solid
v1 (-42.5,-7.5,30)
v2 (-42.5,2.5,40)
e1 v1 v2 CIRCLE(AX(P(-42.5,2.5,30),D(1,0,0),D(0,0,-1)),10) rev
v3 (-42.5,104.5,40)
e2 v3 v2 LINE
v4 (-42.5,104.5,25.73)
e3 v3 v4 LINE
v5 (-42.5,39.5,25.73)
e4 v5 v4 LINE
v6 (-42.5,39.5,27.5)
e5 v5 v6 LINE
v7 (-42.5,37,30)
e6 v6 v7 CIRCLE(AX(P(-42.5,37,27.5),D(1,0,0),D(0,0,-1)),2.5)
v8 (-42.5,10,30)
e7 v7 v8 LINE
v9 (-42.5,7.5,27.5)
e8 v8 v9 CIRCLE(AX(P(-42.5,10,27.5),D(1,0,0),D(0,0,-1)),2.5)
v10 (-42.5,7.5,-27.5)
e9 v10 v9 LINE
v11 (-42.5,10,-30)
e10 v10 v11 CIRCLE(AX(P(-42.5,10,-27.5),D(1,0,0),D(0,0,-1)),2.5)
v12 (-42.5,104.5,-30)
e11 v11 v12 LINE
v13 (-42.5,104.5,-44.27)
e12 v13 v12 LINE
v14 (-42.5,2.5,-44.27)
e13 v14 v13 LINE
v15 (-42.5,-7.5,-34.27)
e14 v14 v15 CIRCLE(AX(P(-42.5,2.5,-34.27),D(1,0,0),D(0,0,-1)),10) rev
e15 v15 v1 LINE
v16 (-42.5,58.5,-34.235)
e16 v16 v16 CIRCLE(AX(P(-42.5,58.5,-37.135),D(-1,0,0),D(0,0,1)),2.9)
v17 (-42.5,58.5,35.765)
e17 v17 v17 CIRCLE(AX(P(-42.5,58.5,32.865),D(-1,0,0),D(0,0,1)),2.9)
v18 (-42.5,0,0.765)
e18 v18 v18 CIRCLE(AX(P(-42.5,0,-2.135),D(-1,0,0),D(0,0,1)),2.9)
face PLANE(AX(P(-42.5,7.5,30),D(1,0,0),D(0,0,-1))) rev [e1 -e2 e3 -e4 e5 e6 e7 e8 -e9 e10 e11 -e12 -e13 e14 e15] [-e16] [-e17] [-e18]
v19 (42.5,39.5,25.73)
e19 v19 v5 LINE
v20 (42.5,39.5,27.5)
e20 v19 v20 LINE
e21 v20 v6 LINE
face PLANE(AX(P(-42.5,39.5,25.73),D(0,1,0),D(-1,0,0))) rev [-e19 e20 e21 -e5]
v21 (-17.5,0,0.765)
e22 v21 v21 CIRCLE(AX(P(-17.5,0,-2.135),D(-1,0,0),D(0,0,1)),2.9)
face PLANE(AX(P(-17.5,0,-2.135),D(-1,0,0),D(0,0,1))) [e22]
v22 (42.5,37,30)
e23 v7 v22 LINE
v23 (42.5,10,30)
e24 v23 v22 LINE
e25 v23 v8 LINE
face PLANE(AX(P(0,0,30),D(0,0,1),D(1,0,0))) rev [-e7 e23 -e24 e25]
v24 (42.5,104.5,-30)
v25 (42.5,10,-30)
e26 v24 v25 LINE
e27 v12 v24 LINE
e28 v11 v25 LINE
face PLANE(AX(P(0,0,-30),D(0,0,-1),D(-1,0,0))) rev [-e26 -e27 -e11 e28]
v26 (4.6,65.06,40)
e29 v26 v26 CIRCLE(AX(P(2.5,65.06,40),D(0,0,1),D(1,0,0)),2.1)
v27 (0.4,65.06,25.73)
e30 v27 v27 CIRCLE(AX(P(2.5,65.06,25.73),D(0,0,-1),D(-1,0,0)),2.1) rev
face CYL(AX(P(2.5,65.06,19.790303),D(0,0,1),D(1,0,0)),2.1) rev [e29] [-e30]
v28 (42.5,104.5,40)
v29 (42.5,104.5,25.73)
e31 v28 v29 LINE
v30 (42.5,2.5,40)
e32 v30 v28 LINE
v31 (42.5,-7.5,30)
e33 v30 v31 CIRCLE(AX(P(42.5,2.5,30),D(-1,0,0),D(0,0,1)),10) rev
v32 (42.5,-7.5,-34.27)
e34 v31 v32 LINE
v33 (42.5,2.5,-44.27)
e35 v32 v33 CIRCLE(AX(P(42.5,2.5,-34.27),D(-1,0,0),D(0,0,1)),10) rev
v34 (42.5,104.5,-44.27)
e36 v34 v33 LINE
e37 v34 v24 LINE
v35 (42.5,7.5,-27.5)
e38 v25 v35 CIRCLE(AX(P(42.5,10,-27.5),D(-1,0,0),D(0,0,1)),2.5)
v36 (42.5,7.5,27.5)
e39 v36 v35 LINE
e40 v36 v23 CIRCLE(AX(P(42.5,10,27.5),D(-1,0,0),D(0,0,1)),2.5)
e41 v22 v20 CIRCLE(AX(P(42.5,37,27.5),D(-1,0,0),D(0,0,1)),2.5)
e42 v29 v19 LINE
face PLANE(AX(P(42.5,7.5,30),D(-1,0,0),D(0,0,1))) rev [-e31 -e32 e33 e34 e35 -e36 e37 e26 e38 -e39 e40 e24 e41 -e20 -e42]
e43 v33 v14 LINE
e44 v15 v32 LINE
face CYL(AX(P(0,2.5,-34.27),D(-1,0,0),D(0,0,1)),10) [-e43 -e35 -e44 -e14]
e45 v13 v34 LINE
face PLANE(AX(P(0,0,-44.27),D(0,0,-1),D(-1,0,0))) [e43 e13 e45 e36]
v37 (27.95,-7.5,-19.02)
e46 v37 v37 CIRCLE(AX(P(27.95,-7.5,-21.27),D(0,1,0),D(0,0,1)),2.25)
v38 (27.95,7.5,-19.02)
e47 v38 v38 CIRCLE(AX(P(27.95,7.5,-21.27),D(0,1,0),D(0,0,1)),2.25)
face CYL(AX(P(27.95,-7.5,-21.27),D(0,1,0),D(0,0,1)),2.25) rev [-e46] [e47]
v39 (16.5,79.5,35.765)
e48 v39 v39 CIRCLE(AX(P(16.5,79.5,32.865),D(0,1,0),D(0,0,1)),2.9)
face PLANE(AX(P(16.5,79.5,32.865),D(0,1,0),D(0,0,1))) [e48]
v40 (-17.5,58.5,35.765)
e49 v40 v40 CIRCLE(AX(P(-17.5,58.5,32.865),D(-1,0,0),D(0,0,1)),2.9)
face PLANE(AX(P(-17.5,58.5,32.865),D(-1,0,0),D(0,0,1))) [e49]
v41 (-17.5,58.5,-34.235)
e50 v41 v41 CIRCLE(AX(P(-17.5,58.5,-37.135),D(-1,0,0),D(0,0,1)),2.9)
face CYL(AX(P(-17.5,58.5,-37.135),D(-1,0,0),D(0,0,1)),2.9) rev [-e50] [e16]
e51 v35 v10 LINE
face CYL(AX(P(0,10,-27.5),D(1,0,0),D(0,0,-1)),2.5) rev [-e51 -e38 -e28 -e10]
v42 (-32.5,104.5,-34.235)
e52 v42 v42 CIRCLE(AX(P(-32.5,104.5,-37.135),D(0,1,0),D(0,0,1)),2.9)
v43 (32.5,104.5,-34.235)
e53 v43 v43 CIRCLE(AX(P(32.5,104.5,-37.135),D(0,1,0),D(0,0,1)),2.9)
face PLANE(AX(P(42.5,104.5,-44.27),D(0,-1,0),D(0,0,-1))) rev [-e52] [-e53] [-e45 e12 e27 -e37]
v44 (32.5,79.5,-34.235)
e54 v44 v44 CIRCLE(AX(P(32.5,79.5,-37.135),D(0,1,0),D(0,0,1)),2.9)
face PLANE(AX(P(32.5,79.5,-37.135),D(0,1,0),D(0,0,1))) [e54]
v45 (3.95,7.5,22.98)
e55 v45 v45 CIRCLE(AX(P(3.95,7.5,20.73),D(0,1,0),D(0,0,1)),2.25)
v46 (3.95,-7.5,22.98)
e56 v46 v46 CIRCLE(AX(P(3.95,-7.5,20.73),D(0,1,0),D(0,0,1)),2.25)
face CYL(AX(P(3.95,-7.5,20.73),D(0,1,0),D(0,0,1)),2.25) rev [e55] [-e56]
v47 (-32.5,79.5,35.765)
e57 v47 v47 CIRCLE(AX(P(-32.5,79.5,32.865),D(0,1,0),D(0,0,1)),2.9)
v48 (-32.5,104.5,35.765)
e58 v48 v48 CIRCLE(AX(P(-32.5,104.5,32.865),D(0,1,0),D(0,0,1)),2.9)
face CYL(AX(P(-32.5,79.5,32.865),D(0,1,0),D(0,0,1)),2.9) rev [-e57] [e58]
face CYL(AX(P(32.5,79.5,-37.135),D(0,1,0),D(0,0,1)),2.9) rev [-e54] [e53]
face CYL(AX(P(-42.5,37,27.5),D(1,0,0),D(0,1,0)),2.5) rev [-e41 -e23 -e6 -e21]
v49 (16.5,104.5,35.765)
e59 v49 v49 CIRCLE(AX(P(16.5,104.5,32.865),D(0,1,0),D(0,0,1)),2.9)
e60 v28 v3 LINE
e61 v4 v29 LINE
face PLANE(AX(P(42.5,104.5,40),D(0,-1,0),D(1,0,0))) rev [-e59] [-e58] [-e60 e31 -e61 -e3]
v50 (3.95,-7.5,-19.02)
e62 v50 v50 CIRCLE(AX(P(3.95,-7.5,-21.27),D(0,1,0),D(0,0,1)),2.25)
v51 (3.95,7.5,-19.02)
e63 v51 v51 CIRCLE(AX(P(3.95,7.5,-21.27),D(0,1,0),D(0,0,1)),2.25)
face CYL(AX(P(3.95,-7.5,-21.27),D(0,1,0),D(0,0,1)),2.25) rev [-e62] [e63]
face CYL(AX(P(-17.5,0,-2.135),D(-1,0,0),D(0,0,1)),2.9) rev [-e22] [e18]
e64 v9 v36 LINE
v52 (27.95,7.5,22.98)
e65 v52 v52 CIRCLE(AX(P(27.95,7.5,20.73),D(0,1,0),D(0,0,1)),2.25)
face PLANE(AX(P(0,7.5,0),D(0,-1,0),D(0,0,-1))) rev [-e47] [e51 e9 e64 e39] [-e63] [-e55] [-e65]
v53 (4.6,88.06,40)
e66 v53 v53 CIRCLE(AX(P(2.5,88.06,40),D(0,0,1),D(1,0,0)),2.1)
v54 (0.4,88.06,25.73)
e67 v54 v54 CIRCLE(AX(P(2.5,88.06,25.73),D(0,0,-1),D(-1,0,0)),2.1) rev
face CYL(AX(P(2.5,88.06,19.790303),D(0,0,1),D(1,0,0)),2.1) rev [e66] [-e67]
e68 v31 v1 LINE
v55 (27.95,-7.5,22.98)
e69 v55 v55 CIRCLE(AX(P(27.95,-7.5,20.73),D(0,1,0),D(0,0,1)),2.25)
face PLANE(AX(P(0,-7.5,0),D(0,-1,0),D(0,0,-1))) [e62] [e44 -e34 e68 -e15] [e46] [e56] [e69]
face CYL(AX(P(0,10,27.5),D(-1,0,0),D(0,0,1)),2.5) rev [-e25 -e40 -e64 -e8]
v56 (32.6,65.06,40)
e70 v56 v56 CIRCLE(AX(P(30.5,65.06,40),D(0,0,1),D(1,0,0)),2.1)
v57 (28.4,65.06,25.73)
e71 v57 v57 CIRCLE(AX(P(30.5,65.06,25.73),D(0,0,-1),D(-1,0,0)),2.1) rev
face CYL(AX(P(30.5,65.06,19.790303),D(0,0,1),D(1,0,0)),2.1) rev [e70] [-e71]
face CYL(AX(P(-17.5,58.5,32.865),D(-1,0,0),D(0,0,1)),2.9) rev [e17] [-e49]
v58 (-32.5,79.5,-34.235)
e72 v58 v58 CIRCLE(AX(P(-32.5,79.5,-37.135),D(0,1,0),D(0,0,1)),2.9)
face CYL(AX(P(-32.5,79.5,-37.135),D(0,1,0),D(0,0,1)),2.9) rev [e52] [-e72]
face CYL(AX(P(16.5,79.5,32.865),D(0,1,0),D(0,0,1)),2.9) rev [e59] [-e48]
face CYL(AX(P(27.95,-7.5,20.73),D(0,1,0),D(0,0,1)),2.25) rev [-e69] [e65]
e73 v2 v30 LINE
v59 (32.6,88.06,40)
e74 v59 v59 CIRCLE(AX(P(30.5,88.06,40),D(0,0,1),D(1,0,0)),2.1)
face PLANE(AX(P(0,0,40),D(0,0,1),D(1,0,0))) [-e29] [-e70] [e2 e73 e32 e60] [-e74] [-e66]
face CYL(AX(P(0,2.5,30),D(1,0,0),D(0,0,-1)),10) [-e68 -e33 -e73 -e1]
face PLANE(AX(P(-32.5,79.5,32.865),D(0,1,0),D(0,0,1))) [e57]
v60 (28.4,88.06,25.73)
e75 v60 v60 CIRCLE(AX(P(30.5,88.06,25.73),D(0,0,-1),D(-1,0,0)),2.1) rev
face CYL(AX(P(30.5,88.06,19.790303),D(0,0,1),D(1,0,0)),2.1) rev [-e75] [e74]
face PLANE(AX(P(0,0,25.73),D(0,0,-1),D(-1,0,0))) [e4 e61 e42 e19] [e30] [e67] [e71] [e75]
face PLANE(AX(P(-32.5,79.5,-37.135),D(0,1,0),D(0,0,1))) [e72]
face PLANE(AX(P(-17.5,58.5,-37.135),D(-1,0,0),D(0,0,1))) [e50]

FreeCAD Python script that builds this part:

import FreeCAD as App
import Part
import Sketcher
Q = App.Units.Quantity


def edges_at(feature, points):
    """Names of the edges that pass closest to the given points."""
    edges = feature.Shape.Edges
    near = lambda p: min(range(len(edges)), key=lambda i: edges[i].distToShape(Part.Vertex(*p))[0])
    return sorted({f"Edge{near(p) + 1}" for p in points})


def add_polygon(sketch, points):
    """Adds a closed chain of lines whose ends are joined by coincident constraints."""
    first, n = sketch.GeometryCount, len(points)
    for a, b in zip(points, points[1:] + points[:1]):
        sketch.addGeometry(Part.LineSegment(App.Vector(*a, 0), App.Vector(*b, 0)), False)
    for i in range(n):
        sketch.addConstraint(Sketcher.Constraint("Coincident", first + i, 2, first + (i + 1) % n, 1))

doc = App.newDocument("Part")
body = doc.addObject("PartDesign::Body", "Body")

sketch1 = body.newObject("Sketcher::SketchObject", "Sketch")
sketch1.AttachmentSupport = (doc.getObject("XZ_Plane"), [""])
sketch1.MapMode = "FlatFace"
add_polygon(sketch1, [(-42, -30), (-42, 30), (42, 30), (42, -30)])
sketch1.addConstraint([
    Sketcher.Constraint("Vertical", 0),
    Sketcher.Constraint("Horizontal", 1),
    Sketcher.Constraint("Vertical", 2),
    Sketcher.Constraint("Horizontal", 3),
    Sketcher.Constraint("Symmetric", 0, 2, 2, 2, -1, 1),
    Sketcher.Constraint("DistanceX", 1, 1, 1, 2, Q("85 mm")),
    Sketcher.Constraint("DistanceY", 0, 1, 0, 2, Q("60 mm")),
])
pad1 = body.newObject("PartDesign::Pad", "Pad")
pad1.Profile = sketch1
pad1.Length = 15
pad1.Midplane = True

sketch2 = body.newObject("Sketcher::SketchObject", "Sketch001")
sketch2.AttachmentSupport = (doc.getObject("XZ_Plane"), [""])
sketch2.MapMode = "FlatFace"
sketch2.AttachmentOffset = App.Placement(App.Vector(0, 0, -7.5), App.Rotation())
sketch2.addGeometry([
    Part.Circle(App.Vector(4, 20.7, 0), App.Vector(0, 0, 1), 2.2),
    Part.Circle(App.Vector(4, -21.3, 0), App.Vector(0, 0, 1), 2.2),
    Part.Circle(App.Vector(27.9, -21.3, 0), App.Vector(0, 0, 1), 2.2),
    Part.Circle(App.Vector(27.9, 20.7, 0), App.Vector(0, 0, 1), 2.2),
], False)
sketch2.addConstraint([
    Sketcher.Constraint("Equal", 0, 1),
    Sketcher.Constraint("Equal", 1, 2),
    Sketcher.Constraint("Equal", 2, 3),
    Sketcher.Constraint("Horizontal", 1, 3, 2, 3),
    Sketcher.Constraint("Horizontal", 0, 3, 3, 3),
    Sketcher.Constraint("Vertical", 0, 3, 1, 3),
    Sketcher.Constraint("Vertical", 2, 3, 3, 3),
    Sketcher.Constraint("Diameter", 0, Q("4.5 mm")),
    Sketcher.Constraint("DistanceY", 1, 3, 0, 3, Q("42 mm")),
    Sketcher.Constraint("DistanceX", 1, 3, 2, 3, Q("24 mm")),
    Sketcher.Constraint("DistanceX", -1, 1, 0, 3, Q("3.95 mm")),
    Sketcher.Constraint("DistanceY", -1, 1, 0, 3, Q("20.73 mm")),
])
pocket1 = body.newObject("PartDesign::Pocket", "Pocket")
pocket1.Profile = sketch2
pocket1.Type = "ThroughAll"
pocket1.Reversed = True

sketch3 = body.newObject("Sketcher::SketchObject", "Sketch002")
sketch3.AttachmentSupport = (doc.getObject("XY_Plane"), [""])
sketch3.MapMode = "FlatFace"
sketch3.AttachmentOffset = App.Placement(App.Vector(0, 0, 30), App.Rotation())
add_polygon(sketch3, [(-42, 104), (-42, -8), (42, -8), (42, 104)])
sketch3.addConstraint([
    Sketcher.Constraint("Vertical", 0),
    Sketcher.Constraint("Horizontal", 1),
    Sketcher.Constraint("Vertical", 2),
    Sketcher.Constraint("Horizontal", 3),
    Sketcher.Constraint("DistanceX", 1, 1, 1, 2, Q("85 mm")),
    Sketcher.Constraint("DistanceY", 0, 2, 0, 1, Q("112 mm")),
    Sketcher.Constraint("DistanceX", 0, 2, -1, 1, Q("42.5 mm")),
    Sketcher.Constraint("DistanceY", 0, 2, -1, 1, Q("7.5 mm")),
])
pad2 = body.newObject("PartDesign::Pad", "Pad001")
pad2.Profile = sketch3
pad2.Length = 10
doc.recompute()

fillet = body.newObject("PartDesign::Fillet", "Fillet")
fillet.Base = (pad2, edges_at(pad2, [(0, -7.5, 40)]))
fillet.Radius = 10

sketch4 = body.newObject("Sketcher::SketchObject", "Sketch003")
sketch4.AttachmentSupport = (doc.getObject("XY_Plane"), [""])
sketch4.MapMode = "FlatFace"
sketch4.AttachmentOffset = App.Placement(App.Vector(0, 0, 30), App.Rotation())
add_polygon(sketch4, [(42, 104), (42, 40), (-42, 40), (-42, 104)])
sketch4.addConstraint([
    Sketcher.Constraint("Vertical", 0),
    Sketcher.Constraint("Horizontal", 1),
    Sketcher.Constraint("Vertical", 2),
    Sketcher.Constraint("Horizontal", 3),
    Sketcher.Constraint("DistanceX", 1, 2, 1, 1, Q("85 mm")),
    Sketcher.Constraint("DistanceY", 0, 2, 0, 1, Q("65 mm")),
    Sketcher.Constraint("DistanceX", -1, 1, 0, 2, Q("42.5 mm")),
    Sketcher.Constraint("DistanceY", -1, 1, 0, 2, Q("39.5 mm")),
])
pad3 = body.newObject("PartDesign::Pad", "Pad002")
pad3.Profile = sketch4
pad3.Length = 4.27
pad3.Reversed = True

sketch5 = body.newObject("Sketcher::SketchObject", "Sketch004")
sketch5.AttachmentSupport = (doc.getObject("XY_Plane"), [""])
sketch5.MapMode = "FlatFace"
sketch5.AttachmentOffset = App.Placement(App.Vector(0, 0, -30), App.Rotation())
add_polygon(sketch5, [(42, 104), (42, -8), (-42, -8), (-42, 104)])
sketch5.addConstraint([
    Sketcher.Constraint("Vertical", 0),
    Sketcher.Constraint("Horizontal", 1),
    Sketcher.Constraint("Vertical", 2),
    Sketcher.Constraint("Horizontal", 3),
    Sketcher.Constraint("DistanceX", 1, 2, 1, 1, Q("85 mm")),
    Sketcher.Constraint("DistanceY", 0, 2, 0, 1, Q("112 mm")),
    Sketcher.Constraint("DistanceX", -1, 1, 0, 2, Q("42.5 mm")),
    Sketcher.Constraint("DistanceY", 0, 2, -1, 1, Q("7.5 mm")),
])
pad4 = body.newObject("PartDesign::Pad", "Pad003")
pad4.Profile = sketch5
pad4.Length = 14.27
pad4.Reversed = True
doc.recompute()

fillet2 = body.newObject("PartDesign::Fillet", "Fillet001")
fillet2.Base = (pad4, edges_at(pad4, [(0, -7.5, -44.27)]))
fillet2.Radius = 10
doc.recompute()

fillet3 = body.newObject("PartDesign::Fillet", "Fillet002")
fillet3.Base = (fillet2, edges_at(fillet2, [(0, 7.5, -30)]))
fillet3.Radius = 2.5
doc.recompute()

fillet4 = body.newObject("PartDesign::Fillet", "Fillet003")
fillet4.Base = (fillet3, edges_at(fillet3, [(0, 7.5, 30)]))
fillet4.Radius = 2.5
doc.recompute()

fillet5 = body.newObject("PartDesign::Fillet", "Fillet004")
fillet5.Base = (fillet4, edges_at(fillet4, [(0, 39.5, 30)]))
fillet5.Radius = 2.5

sketch6 = body.newObject("Sketcher::SketchObject", "Sketch005")
sketch6.AttachmentSupport = (doc.getObject("XZ_Plane"), [""])
sketch6.MapMode = "FlatFace"
sketch6.AttachmentOffset = App.Placement(App.Vector(0, 0, -104.5), App.Rotation())
sketch6.addGeometry([
    Part.Circle(App.Vector(32.5, -37.1, 0), App.Vector(0, 0, 1), 2.9),
    Part.Circle(App.Vector(-32.5, 32.9, 0), App.Vector(0, 0, 1), 2.9),
    Part.Circle(App.Vector(-32.5, -37.1, 0), App.Vector(0, 0, 1), 2.9),
    Part.Circle(App.Vector(16.5, 32.9, 0), App.Vector(0, 0, 1), 2.9),
], False)
sketch6.addConstraint([
    Sketcher.Constraint("Equal", 0, 1),
    Sketcher.Constraint("Equal", 1, 2),
    Sketcher.Constraint("Equal", 2, 3),
    Sketcher.Constraint("Symmetric", 0, 3, 2, 3, -2),
    Sketcher.Constraint("Horizontal", 1, 3, 3, 3),
    Sketcher.Constraint("Vertical", 1, 3, 2, 3),
    Sketcher.Constraint("Diameter", 0, Q("5.8 mm")),
    Sketcher.Constraint("DistanceX", 1, 3, 0, 3, Q("65 mm")),
    Sketcher.Constraint("DistanceY", 0, 3, 1, 3, Q("70 mm")),
    Sketcher.Constraint("DistanceX", 1, 3, 3, 3, Q("49 mm")),
    Sketcher.Constraint("DistanceY", 0, 3, -1, 1, Q("37.135 mm")),
])
pocket2 = body.newObject("PartDesign::Pocket", "Pocket001")
pocket2.Profile = sketch6
pocket2.Length = 25
pocket2.Reversed = True

sketch7 = body.newObject("Sketcher::SketchObject", "Sketch006")
sketch7.AttachmentSupport = (doc.getObject("XY_Plane"), [""])
sketch7.MapMode = "FlatFace"
sketch7.AttachmentOffset = App.Placement(App.Vector(0, 0, 40), App.Rotation())
sketch7.addGeometry([
    Part.Circle(App.Vector(30.5, 88.1, 0), App.Vector(0, 0, 1), 2.1),
    Part.Circle(App.Vector(30.5, 65.1, 0), App.Vector(0, 0, 1), 2.1),
    Part.Circle(App.Vector(2.5, 65.1, 0), App.Vector(0, 0, 1), 2.1),
    Part.Circle(App.Vector(2.5, 88.1, 0), App.Vector(0, 0, 1), 2.1),
], False)
sketch7.addConstraint([
    Sketcher.Constraint("Equal", 0, 1),
    Sketcher.Constraint("Equal", 1, 2),
    Sketcher.Constraint("Equal", 2, 3),
    Sketcher.Constraint("Horizontal", 1, 3, 2, 3),
    Sketcher.Constraint("Horizontal", 0, 3, 3, 3),
    Sketcher.Constraint("Vertical", 0, 3, 1, 3),
    Sketcher.Constraint("Vertical", 2, 3, 3, 3),
    Sketcher.Constraint("Diameter", 0, Q("4.2 mm")),
    Sketcher.Constraint("DistanceY", 1, 3, 0, 3, Q("23 mm")),
    Sketcher.Constraint("DistanceX", 2, 3, 1, 3, Q("28 mm")),
    Sketcher.Constraint("DistanceX", -1, 1, 0, 3, Q("30.5 mm")),
    Sketcher.Constraint("DistanceY", -1, 1, 0, 3, Q("88.06 mm")),
])
pocket3 = body.newObject("PartDesign::Pocket", "Pocket002")
pocket3.Profile = sketch7
pocket3.Length = 14.27

sketch8 = body.newObject("Sketcher::SketchObject", "Sketch007")
sketch8.AttachmentSupport = (doc.getObject("YZ_Plane"), [""])
sketch8.MapMode = "FlatFace"
sketch8.AttachmentOffset = App.Placement(App.Vector(0, 0, -42.5), App.Rotation())
sketch8.addGeometry([
    Part.Circle(App.Vector(58.5, -37.1, 0), App.Vector(0, 0, 1), 2.9),
    Part.Circle(App.Vector(58.5, 32.9, 0), App.Vector(0, 0, 1), 2.9),
    Part.Circle(App.Vector(0, -2.1, 0), App.Vector(0, 0, 1), 2.9),
], False)
sketch8.addConstraint([
    Sketcher.Constraint("Equal", 0, 1),
    Sketcher.Constraint("Equal", 1, 2),
    Sketcher.Constraint("PointOnObject", 2, 3, -2),
    Sketcher.Constraint("Vertical", 0, 3, 1, 3),
    Sketcher.Constraint("Diameter", 0, Q("5.8 mm")),
    Sketcher.Constraint("DistanceY", 0, 3, 1, 3, Q("70 mm")),
    Sketcher.Constraint("DistanceY", 0, 3, 2, 3, Q("35 mm")),
    Sketcher.Constraint("DistanceX", -1, 1, 0, 3, Q("58.5 mm")),
    Sketcher.Constraint("DistanceY", 0, 3, -1, 1, Q("37.135 mm")),
])
pocket4 = body.newObject("PartDesign::Pocket", "Pocket003")
pocket4.Profile = sketch8
pocket4.Length = 25
pocket4.Reversed = True

doc.recompute()
